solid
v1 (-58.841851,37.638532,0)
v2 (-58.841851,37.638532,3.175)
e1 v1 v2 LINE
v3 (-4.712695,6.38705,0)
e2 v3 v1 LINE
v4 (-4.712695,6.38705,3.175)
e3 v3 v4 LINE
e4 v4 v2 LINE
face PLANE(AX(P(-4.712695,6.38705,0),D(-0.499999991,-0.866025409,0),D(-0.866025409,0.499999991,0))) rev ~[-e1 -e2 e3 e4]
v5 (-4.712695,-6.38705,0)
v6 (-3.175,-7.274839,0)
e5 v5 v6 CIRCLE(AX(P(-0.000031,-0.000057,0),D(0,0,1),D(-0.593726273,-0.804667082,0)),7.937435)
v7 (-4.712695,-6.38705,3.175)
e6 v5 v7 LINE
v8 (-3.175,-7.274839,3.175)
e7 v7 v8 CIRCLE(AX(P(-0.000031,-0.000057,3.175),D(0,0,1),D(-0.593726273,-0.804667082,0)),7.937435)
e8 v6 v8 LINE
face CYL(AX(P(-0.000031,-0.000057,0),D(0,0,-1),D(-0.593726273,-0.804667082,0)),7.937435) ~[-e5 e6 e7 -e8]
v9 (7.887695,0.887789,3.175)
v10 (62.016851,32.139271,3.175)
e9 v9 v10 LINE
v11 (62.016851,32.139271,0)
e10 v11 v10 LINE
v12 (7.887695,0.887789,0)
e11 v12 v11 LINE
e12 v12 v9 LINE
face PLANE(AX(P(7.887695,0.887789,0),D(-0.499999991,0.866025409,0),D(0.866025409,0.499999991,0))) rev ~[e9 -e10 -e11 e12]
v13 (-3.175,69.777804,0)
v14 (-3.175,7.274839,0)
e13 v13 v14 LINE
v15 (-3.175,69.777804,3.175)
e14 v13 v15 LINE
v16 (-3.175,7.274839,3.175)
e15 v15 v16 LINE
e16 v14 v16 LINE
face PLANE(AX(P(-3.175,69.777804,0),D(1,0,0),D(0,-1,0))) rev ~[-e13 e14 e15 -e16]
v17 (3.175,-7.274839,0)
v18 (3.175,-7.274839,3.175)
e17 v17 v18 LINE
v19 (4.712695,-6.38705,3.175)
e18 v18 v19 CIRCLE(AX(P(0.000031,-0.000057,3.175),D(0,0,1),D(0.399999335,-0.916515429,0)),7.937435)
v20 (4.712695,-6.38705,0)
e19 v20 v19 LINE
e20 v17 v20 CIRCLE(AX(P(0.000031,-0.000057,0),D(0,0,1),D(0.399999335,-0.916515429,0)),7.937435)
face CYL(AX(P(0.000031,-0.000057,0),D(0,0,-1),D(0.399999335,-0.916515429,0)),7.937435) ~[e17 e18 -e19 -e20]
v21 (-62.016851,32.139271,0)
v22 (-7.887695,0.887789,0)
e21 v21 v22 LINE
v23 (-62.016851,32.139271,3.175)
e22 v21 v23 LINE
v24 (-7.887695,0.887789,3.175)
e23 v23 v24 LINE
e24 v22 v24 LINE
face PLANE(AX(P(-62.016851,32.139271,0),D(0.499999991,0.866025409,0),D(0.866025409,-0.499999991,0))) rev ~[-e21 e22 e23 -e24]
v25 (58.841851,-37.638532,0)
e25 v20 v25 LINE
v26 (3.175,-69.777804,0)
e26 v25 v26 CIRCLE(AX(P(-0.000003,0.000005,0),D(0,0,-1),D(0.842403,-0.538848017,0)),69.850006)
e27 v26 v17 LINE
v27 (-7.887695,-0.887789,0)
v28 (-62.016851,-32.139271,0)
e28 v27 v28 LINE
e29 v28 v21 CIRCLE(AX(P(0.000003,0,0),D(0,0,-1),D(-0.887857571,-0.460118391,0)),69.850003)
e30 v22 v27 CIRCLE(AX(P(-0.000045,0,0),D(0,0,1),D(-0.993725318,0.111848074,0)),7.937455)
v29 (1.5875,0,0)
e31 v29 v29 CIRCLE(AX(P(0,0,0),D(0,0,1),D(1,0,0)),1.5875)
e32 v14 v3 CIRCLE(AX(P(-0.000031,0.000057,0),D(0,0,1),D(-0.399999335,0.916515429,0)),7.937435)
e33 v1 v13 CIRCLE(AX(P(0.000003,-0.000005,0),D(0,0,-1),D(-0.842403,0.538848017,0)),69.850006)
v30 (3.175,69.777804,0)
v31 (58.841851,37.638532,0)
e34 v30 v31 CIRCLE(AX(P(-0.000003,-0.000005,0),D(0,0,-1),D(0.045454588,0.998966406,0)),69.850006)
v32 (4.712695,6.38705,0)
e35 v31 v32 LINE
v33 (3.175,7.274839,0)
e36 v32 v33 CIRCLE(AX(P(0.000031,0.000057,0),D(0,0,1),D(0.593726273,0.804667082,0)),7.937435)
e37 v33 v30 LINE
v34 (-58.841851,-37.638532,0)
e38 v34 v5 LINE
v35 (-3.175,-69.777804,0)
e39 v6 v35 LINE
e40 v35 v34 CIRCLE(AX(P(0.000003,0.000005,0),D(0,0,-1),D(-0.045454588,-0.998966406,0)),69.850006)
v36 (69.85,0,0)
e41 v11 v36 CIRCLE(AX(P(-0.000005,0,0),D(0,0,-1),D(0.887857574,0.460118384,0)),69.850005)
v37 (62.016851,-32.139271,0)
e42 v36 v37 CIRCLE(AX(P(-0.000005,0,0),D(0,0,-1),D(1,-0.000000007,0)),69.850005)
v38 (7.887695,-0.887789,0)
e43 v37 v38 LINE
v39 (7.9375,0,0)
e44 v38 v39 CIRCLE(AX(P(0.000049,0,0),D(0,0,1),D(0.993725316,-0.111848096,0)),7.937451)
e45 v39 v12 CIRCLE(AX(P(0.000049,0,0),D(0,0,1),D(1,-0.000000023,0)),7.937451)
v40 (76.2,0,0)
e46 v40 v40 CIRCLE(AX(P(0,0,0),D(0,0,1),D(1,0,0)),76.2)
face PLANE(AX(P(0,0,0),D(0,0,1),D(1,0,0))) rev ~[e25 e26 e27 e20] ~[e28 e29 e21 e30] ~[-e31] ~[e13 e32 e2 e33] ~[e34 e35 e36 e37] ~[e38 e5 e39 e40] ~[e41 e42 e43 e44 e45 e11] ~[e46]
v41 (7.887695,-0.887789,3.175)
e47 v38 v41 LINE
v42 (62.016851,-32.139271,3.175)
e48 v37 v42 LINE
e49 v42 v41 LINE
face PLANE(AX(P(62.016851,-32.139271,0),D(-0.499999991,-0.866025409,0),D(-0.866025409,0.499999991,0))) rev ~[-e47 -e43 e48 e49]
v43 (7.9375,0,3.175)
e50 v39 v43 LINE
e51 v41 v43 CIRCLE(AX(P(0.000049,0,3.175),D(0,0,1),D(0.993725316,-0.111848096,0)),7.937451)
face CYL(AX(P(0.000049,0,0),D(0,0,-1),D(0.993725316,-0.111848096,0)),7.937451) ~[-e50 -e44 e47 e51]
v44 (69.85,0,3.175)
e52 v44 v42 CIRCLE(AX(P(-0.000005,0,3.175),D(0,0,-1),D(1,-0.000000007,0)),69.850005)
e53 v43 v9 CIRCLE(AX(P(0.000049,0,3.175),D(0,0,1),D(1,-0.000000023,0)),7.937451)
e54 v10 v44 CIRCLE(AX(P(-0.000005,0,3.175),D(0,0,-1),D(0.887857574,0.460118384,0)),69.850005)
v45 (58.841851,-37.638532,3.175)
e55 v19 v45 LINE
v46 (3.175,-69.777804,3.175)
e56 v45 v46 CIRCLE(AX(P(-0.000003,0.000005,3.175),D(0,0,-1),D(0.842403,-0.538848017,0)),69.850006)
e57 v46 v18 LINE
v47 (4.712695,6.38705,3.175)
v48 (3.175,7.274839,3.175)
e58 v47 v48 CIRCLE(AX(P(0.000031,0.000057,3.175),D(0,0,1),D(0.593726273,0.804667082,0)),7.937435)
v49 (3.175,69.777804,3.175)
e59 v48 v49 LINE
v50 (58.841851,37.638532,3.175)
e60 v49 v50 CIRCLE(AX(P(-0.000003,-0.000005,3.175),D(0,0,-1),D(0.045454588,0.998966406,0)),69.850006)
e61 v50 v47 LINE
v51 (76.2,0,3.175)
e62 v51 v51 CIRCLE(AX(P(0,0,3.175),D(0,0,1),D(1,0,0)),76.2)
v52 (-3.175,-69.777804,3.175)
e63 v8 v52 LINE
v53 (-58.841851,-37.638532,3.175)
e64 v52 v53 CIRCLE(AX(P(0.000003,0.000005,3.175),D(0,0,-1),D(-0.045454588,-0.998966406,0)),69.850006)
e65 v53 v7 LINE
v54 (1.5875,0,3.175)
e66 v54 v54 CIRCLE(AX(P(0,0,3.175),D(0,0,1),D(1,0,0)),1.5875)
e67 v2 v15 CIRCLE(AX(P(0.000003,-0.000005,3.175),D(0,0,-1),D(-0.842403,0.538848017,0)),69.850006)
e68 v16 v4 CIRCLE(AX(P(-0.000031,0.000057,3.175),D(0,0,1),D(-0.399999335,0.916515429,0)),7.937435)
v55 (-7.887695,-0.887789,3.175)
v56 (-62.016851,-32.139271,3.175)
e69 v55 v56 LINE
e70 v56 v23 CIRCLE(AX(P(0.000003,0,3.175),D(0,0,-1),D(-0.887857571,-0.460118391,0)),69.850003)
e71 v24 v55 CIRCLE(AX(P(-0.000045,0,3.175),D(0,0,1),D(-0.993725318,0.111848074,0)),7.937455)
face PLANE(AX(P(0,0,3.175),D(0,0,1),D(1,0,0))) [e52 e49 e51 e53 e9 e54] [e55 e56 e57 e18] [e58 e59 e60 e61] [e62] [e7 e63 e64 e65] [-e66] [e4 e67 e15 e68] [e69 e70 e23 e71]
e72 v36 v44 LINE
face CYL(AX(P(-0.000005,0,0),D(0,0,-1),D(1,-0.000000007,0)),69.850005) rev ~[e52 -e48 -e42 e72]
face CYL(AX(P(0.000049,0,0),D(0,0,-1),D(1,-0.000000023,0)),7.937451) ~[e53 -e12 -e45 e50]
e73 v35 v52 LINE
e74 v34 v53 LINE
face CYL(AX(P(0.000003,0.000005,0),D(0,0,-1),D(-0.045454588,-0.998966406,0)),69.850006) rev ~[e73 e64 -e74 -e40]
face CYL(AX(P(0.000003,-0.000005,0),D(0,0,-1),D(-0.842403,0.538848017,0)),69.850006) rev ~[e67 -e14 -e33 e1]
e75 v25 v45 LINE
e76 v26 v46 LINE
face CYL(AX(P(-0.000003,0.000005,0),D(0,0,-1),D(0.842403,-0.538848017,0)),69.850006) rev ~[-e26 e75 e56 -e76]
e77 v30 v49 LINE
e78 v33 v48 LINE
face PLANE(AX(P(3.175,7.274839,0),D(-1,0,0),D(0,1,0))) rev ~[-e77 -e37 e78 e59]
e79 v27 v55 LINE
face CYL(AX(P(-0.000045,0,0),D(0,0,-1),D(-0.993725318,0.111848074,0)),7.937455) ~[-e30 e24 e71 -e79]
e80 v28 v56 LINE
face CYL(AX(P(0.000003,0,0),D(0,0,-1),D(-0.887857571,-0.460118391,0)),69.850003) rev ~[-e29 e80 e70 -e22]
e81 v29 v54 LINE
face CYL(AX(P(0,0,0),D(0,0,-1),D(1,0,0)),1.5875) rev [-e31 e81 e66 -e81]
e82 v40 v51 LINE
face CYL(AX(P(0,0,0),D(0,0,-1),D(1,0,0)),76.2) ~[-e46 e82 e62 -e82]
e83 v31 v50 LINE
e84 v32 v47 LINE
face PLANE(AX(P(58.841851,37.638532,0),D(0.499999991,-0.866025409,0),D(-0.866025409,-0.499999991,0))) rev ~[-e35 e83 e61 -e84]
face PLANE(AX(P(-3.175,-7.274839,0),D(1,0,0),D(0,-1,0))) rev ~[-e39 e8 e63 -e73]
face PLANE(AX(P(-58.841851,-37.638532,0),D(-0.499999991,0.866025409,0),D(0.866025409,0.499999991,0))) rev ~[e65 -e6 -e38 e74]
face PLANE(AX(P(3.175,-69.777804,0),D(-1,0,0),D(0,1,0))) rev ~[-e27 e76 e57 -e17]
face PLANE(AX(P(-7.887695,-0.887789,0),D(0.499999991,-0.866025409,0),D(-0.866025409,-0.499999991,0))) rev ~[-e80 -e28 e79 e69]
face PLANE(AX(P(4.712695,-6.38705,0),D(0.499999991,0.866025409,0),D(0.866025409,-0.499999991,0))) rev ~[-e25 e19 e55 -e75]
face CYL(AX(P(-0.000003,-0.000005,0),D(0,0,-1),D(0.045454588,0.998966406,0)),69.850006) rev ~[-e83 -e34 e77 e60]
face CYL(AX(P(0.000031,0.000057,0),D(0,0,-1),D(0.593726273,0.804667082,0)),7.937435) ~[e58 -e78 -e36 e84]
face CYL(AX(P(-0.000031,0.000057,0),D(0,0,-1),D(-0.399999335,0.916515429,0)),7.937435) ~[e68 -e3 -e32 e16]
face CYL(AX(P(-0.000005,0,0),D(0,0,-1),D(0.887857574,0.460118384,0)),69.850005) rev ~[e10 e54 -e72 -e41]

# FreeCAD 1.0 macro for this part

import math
import FreeCAD as App
import Part
import Sketcher
from FreeCAD import Vector
Q = App.Units.Quantity

doc = App.newDocument("Part")
params = doc.addObject("Spreadsheet::Sheet", "Params")
for row, (alias, value) in enumerate([
    ("sketch1_diameter", "6 in"),
    ("sketch1_radius", "2.7500001 in"),
    ("sketch1_diameter2", "0.125 in"),
    ("pad1_length", "0.125 in"),
], start=1):
    params.set(f"A{row}", alias)
    params.set(f"B{row}", "=" + value)
    params.setAlias(f"B{row}", alias)

body = doc.addObject("PartDesign::Body", "Body")

# Sketch on XY plane
sketch1 = body.newObject("Sketcher::SketchObject", "Sketch")
sketch1.AttachmentSupport = (doc.getObject("XY_Plane"), [""])
sketch1.MapMode = "FlatFace"
sketch1.addGeometry(Part.Circle(Vector(0, 0, 0), Vector(0, 0, 1), 76.2), False)
sketch1.addGeometry(Part.ArcOfCircle(Part.Circle(Vector(0.000003, 0.000005, 0), Vector(0, 0, 1), 69.850006), math.radians(-147.394747), math.radians(-92.605254)), False)
sketch1.addGeometry(Part.LineSegment(Vector(-58.841851, -37.638532, 0), Vector(-4.712695, -6.38705, 0)), False)
sketch1.addGeometry(Part.ArcOfCircle(Part.Circle(Vector(-0.000031, -0.000057, 0), Vector(0, 0, 1), 7.937435), math.radians(-126.421884), math.radians(-113.578137)), False)
sketch1.addGeometry(Part.LineSegment(Vector(-3.175, -7.274839, 0), Vector(-3.175, -69.777804, 0)), False)
sketch1.addGeometry(Part.ArcOfCircle(Part.Circle(Vector(-0.000003, 0.000005, 0), Vector(0, 0, 1), 69.850006), math.radians(-87.394746), math.radians(-32.605253)), False)
sketch1.addGeometry(Part.LineSegment(Vector(3.175, -69.777804, 0), Vector(3.175, -7.274839, 0)), False)
sketch1.addGeometry(Part.ArcOfCircle(Part.Circle(Vector(0.000031, -0.000057, 0), Vector(0, 0, 1), 7.937435), math.radians(-66.421863), math.radians(-53.578116)), False)
sketch1.addGeometry(Part.LineSegment(Vector(4.712695, -6.38705, 0), Vector(58.841851, -37.638532, 0)), False)
sketch1.addGeometry(Part.LineSegment(Vector(-7.887695, -0.887789, 0), Vector(-62.016851, -32.139271, 0)), False)
sketch1.addGeometry(Part.ArcOfCircle(Part.Circle(Vector(0.000003, 0, 0), Vector(0, 0, 1), 69.850003), math.radians(152.605253), math.radians(207.394747)), False)
sketch1.addGeometry(Part.LineSegment(Vector(-62.016851, 32.139271, 0), Vector(-7.887695, 0.887789, 0)), False)
sketch1.addGeometry(Part.ArcOfCircle(Part.Circle(Vector(-0.000045, 0, 0), Vector(0, 0, 1), 7.937455), math.radians(173.57814), math.radians(186.42186)), False)
sketch1.addGeometry(Part.LineSegment(Vector(-3.175, 69.777804, 0), Vector(-3.175, 7.274839, 0)), False)
sketch1.addGeometry(Part.ArcOfCircle(Part.Circle(Vector(-0.000031, 0.000057, 0), Vector(0, 0, 1), 7.937435), math.radians(113.578137), math.radians(126.421884)), False)
sketch1.addGeometry(Part.LineSegment(Vector(-4.712695, 6.38705, 0), Vector(-58.841851, 37.638532, 0)), False)
sketch1.addGeometry(Part.ArcOfCircle(Part.Circle(Vector(0.000003, -0.000005, 0), Vector(0, 0, 1), 69.850006), math.radians(92.605254), math.radians(147.394747)), False)
sketch1.addGeometry(Part.Circle(Vector(0, 0, 0), Vector(0, 0, 1), 1.5875), False)
sketch1.addGeometry(Part.ArcOfCircle(Part.Circle(Vector(-0.000005, 0, 0), Vector(0, 0, 1), 69.850005), math.radians(0), math.radians(27.394747)), False)
sketch1.addGeometry(Part.ArcOfCircle(Part.Circle(Vector(-0.000005, 0, 0), Vector(0, 0, 1), 69.850005), math.radians(-27.394747), math.radians(0)), False)
sketch1.addGeometry(Part.LineSegment(Vector(62.016851, -32.139271, 0), Vector(7.887695, -0.887789, 0)), False)
sketch1.addGeometry(Part.ArcOfCircle(Part.Circle(Vector(0.000049, 0, 0), Vector(0, 0, 1), 7.937451), math.radians(-6.421861), math.radians(0.000001)), False)
sketch1.addGeometry(Part.ArcOfCircle(Part.Circle(Vector(0.000049, 0, 0), Vector(0, 0, 1), 7.937451), math.radians(-0.000001), math.radians(6.421861)), False)
sketch1.addGeometry(Part.LineSegment(Vector(7.887695, 0.887789, 0), Vector(62.016851, 32.139271, 0)), False)
sketch1.addGeometry(Part.ArcOfCircle(Part.Circle(Vector(0.000031, 0.000057, 0), Vector(0, 0, 1), 7.937435), math.radians(53.578116), math.radians(66.421863)), False)
sketch1.addGeometry(Part.LineSegment(Vector(3.175, 7.274839, 0), Vector(3.175, 69.777804, 0)), False)
sketch1.addGeometry(Part.ArcOfCircle(Part.Circle(Vector(-0.000003, -0.000005, 0), Vector(0, 0, 1), 69.850006), math.radians(32.605253), math.radians(87.394746)), False)
sketch1.addGeometry(Part.LineSegment(Vector(58.841851, 37.638532, 0), Vector(4.712695, 6.38705, 0)), False)
sketch1.addConstraint(Sketcher.Constraint("Coincident", 1, 1, 2, 1))
sketch1.addConstraint(Sketcher.Constraint("Coincident", 2, 2, 3, 1))
sketch1.addConstraint(Sketcher.Constraint("Coincident", 3, 2, 4, 1))
sketch1.addConstraint(Sketcher.Constraint("Coincident", 4, 2, 1, 2))
sketch1.addConstraint(Sketcher.Constraint("Coincident", 5, 1, 6, 1))
sketch1.addConstraint(Sketcher.Constraint("Coincident", 6, 2, 7, 1))
sketch1.addConstraint(Sketcher.Constraint("Coincident", 7, 2, 8, 1))
sketch1.addConstraint(Sketcher.Constraint("Coincident", 8, 2, 5, 2))
sketch1.addConstraint(Sketcher.Constraint("Coincident", 9, 2, 10, 2))
sketch1.addConstraint(Sketcher.Constraint("Coincident", 10, 1, 11, 1))
sketch1.addConstraint(Sketcher.Constraint("Coincident", 11, 2, 12, 1))
sketch1.addConstraint(Sketcher.Constraint("Coincident", 12, 2, 9, 1))
sketch1.addConstraint(Sketcher.Constraint("Coincident", 13, 2, 14, 1))
sketch1.addConstraint(Sketcher.Constraint("Coincident", 14, 2, 15, 1))
sketch1.addConstraint(Sketcher.Constraint("Coincident", 15, 2, 16, 2))
sketch1.addConstraint(Sketcher.Constraint("Coincident", 16, 1, 13, 1))
sketch1.addConstraint(Sketcher.Constraint("Tangent", 18, 1, 19, 2))
sketch1.addConstraint(Sketcher.Constraint("Coincident", 19, 1, 20, 1))
sketch1.addConstraint(Sketcher.Constraint("Coincident", 20, 2, 21, 1))
sketch1.addConstraint(Sketcher.Constraint("Tangent", 21, 2, 22, 1))
sketch1.addConstraint(Sketcher.Constraint("Coincident", 22, 2, 23, 1))
sketch1.addConstraint(Sketcher.Constraint("Coincident", 23, 2, 18, 2))
sketch1.addConstraint(Sketcher.Constraint("Coincident", 24, 2, 25, 1))
sketch1.addConstraint(Sketcher.Constraint("Coincident", 25, 2, 26, 2))
sketch1.addConstraint(Sketcher.Constraint("Coincident", 26, 1, 27, 1))
sketch1.addConstraint(Sketcher.Constraint("Coincident", 27, 2, 24, 1))
sketch1.addConstraint(Sketcher.Constraint("Vertical", 4))
sketch1.addConstraint(Sketcher.Constraint("Vertical", 6))
sketch1.addConstraint(Sketcher.Constraint("Vertical", 13))
sketch1.addConstraint(Sketcher.Constraint("Vertical", 25))
sketch1.addConstraint(Sketcher.Constraint("Coincident", 0, 3, -1, 1))
sketch1.addConstraint(Sketcher.Constraint("Coincident", 1, 3, -1, 1))
sketch1.addConstraint(Sketcher.Constraint("Coincident", 5, 3, -1, 1))
sketch1.addConstraint(Sketcher.Constraint("Coincident", 10, 3, -1, 1))
sketch1.addConstraint(Sketcher.Constraint("Coincident", 16, 3, -1, 1))
sketch1.addConstraint(Sketcher.Constraint("Coincident", 17, 3, -1, 1))
sketch1.addConstraint(Sketcher.Constraint("Coincident", 18, 3, -1, 1))
sketch1.addConstraint(Sketcher.Constraint("Coincident", 26, 3, -1, 1))
sketch1.addConstraint(Sketcher.Constraint("Equal", 1, 5))
sketch1.addConstraint(Sketcher.Constraint("Equal", 3, 7))
sketch1.addConstraint(Sketcher.Constraint("Equal", 7, 14))
sketch1.addConstraint(Sketcher.Constraint("Equal", 5, 16))
sketch1.addConstraint(Sketcher.Constraint("Equal", 16, 18))
sketch1.addConstraint(Sketcher.Constraint("Equal", 18, 19))
sketch1.addConstraint(Sketcher.Constraint("Equal", 21, 22))
sketch1.addConstraint(Sketcher.Constraint("Equal", 14, 24))
sketch1.addConstraint(Sketcher.Constraint("Equal", 19, 26))
sketch1.addConstraint(Sketcher.Constraint("Symmetric", 7, 3, 14, 3, -1, 1))
sketch1.addConstraint(Sketcher.Constraint("Symmetric", 12, 3, 21, 3, -1, 1))
sketch1.addConstraint(Sketcher.Constraint("Symmetric", 3, 3, 24, 3, -1, 1))
sketch1.addConstraint(Sketcher.Constraint("Symmetric", 10, 1, 19, 1, -1, 1))
sketch1.addConstraint(Sketcher.Constraint("Symmetric", 11, 2, 20, 2, -1, 1))
sketch1.addConstraint(Sketcher.Constraint("Symmetric", 3, 3, 7, 3, -2))
sketch1.addConstraint(Sketcher.Constraint("Symmetric", 12, 2, 20, 2, -2))
sketch1.addConstraint(Sketcher.Constraint("PointOnObject", 18, 1, -1))
sketch1.addConstraint(Sketcher.Constraint("PointOnObject", 21, 2, -1))
sketch1.addConstraint(Sketcher.Constraint("Parallel", 2, 9))
sketch1.addConstraint(Sketcher.Constraint("Parallel", 8, 11))
sketch1.addConstraint(Sketcher.Constraint("Parallel", 11, 15))
sketch1.addConstraint(Sketcher.Constraint("Parallel", 9, 23))
sketch1.addConstraint(Sketcher.Constraint("Parallel", 23, 27))
sketch1.addConstraint(Sketcher.Constraint("Horizontal", 4, 2, 5, 1))
sketch1.addConstraint(Sketcher.Constraint("Horizontal", 2, 2, 7, 2))
sketch1.addConstraint(Sketcher.Constraint("Horizontal", 1, 1, 8, 2))
sketch1.addConstraint(Sketcher.Constraint("Horizontal", 11, 2, 22, 2))
sketch1.addConstraint(Sketcher.Constraint("Horizontal", 13, 2, 24, 2))
sketch1.addConstraint(Sketcher.Constraint("Horizontal", 15, 2, 26, 1))
sketch1.addConstraint(Sketcher.Constraint("Vertical", 4, 2, 13, 2))
sketch1.addConstraint(Sketcher.Constraint("Vertical", 2, 2, 14, 2))
sketch1.addConstraint(Sketcher.Constraint("Equal", 8, 9))
sketch1.addConstraint(Sketcher.Constraint("Diameter", 0, Q("6 in")))
sketch1.addConstraint(Sketcher.Constraint("Radius", 10, Q("2.7500001 in")))
sketch1.addConstraint(Sketcher.Constraint("Diameter", 17, Q("0.125 in")))
sketch1.addConstraint(Sketcher.Constraint("Angle", 2, Q("29.999999 deg")))
sketch1.addConstraint(Sketcher.Constraint("DistanceX", 4, 2, 5, 1, Q("0.25 in")))
sketch1.addConstraint(Sketcher.Constraint("DistanceX", -1, 1, 21, 2, Q("0.3125 in")))
sketch1.addConstraint(Sketcher.Constraint("Radius", 21, Q("7.937451 mm")))
sketch1.addConstraint(Sketcher.Constraint("DistanceX", 9, 2, 1, 1, Q("0.125 in")))
sketch1.addConstraint(Sketcher.Constraint("Radius", 3, Q("7.937435 mm")))
sketch1.addConstraint(Sketcher.Constraint("DistanceY", 4, 2, 4, 1, Q("62.502965 mm")))
sketch1.addConstraint(Sketcher.Constraint("DistanceY", 2, 2, -1, 1, Q("6.38705 mm")))
sketch1.setExpression("Constraints[70]", "Params.sketch1_diameter")
sketch1.setExpression("Constraints[71]", "Params.sketch1_radius")
sketch1.setExpression("Constraints[72]", "Params.sketch1_diameter2")
pad1 = body.newObject("PartDesign::Pad", "Pad")
pad1.Profile = sketch1
pad1.setExpression("Length", "Params.pad1_length")

doc.recompute()
